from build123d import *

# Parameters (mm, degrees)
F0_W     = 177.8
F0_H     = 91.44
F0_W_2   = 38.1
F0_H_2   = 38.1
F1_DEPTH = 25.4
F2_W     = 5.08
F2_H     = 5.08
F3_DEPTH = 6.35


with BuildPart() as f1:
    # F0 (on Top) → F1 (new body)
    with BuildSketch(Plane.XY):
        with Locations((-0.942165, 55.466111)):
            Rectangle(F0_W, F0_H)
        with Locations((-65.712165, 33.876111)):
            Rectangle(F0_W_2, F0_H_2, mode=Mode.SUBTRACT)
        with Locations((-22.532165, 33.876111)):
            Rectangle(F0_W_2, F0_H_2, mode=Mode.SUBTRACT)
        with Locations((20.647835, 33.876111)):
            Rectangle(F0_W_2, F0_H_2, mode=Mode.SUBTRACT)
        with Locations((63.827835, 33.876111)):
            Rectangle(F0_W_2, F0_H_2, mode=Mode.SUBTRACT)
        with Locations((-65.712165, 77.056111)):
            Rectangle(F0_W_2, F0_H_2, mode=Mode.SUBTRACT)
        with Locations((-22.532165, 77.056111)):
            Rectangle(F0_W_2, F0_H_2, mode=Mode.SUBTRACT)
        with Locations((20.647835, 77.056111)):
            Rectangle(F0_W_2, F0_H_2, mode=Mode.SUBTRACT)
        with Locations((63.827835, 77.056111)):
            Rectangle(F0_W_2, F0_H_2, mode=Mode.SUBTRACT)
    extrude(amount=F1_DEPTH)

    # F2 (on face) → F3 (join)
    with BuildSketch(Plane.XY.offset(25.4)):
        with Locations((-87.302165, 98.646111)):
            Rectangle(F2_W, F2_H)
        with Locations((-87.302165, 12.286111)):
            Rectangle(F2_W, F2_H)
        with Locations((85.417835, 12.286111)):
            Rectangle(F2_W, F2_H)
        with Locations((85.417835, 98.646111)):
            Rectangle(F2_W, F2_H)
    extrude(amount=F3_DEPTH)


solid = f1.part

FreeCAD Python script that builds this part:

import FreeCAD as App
import Part
import Sketcher
from FreeCAD import Vector
Q = App.Units.Quantity


def add_polygon(sketch, points):
    """Adds a closed chain of lines whose ends are joined by coincident constraints."""
    first, n = sketch.GeometryCount, len(points)
    for a, b in zip(points, points[1:] + points[:1]):
        sketch.addGeometry(Part.LineSegment(App.Vector(*a, 0), App.Vector(*b, 0)), False)
    for i in range(n):
        sketch.addConstraint(Sketcher.Constraint("Coincident", first + i, 2, first + (i + 1) % n, 1))

doc = App.newDocument("Part")
body = doc.addObject("PartDesign::Body", "Body")

sketch1 = doc.addObject("Sketcher::SketchObject", "Sketch")
body.addObject(sketch1)
sketch1.AttachmentSupport = (doc.XY_Plane, [""])
sketch1.MapMode = "FlatFace"
add_polygon(sketch1, [(-89.842165, 101.186111), (-89.842165, 9.746111), (87.957835, 9.746111), (87.957835, 101.186111)])
add_polygon(sketch1, [(-46.662165, 14.826111), (-84.762165, 14.826111), (-84.762165, 52.926111), (-46.662165, 52.926111)])
add_polygon(sketch1, [(-3.482165, 14.826111), (-41.582165, 14.826111), (-41.582165, 52.926111), (-3.482165, 52.926111)])
add_polygon(sketch1, [(39.697835, 14.826111), (1.597835, 14.826111), (1.597835, 52.926111), (39.697835, 52.926111)])
add_polygon(sketch1, [(82.877835, 14.826111), (44.777835, 14.826111), (44.777835, 52.926111), (82.877835, 52.926111)])
add_polygon(sketch1, [(-46.662165, 58.006111), (-84.762165, 58.006111), (-84.762165, 96.106111), (-46.662165, 96.106111)])
add_polygon(sketch1, [(-3.482165, 58.006111), (-41.582165, 58.006111), (-41.582165, 96.106111), (-3.482165, 96.106111)])
add_polygon(sketch1, [(39.697835, 58.006111), (1.597835, 58.006111), (1.597835, 96.106111), (39.697835, 96.106111)])
add_polygon(sketch1, [(82.877835, 58.006111), (44.777835, 58.006111), (44.777835, 96.106111), (82.877835, 96.106111)])
sketch1.addConstraint([
    Sketcher.Constraint("Vertical", 0),
    Sketcher.Constraint("Horizontal", 1),
    Sketcher.Constraint("Vertical", 2),
    Sketcher.Constraint("Horizontal", 3),
    Sketcher.Constraint("Horizontal", 4),
    Sketcher.Constraint("Vertical", 5),
    Sketcher.Constraint("Horizontal", 6),
    Sketcher.Constraint("Vertical", 7),
    Sketcher.Constraint("Horizontal", 8),
    Sketcher.Constraint("Vertical", 9),
    Sketcher.Constraint("Horizontal", 10),
    Sketcher.Constraint("Vertical", 11),
    Sketcher.Constraint("Horizontal", 12),
    Sketcher.Constraint("Vertical", 13),
    Sketcher.Constraint("Horizontal", 14),
    Sketcher.Constraint("Vertical", 15),
    Sketcher.Constraint("Horizontal", 16),
    Sketcher.Constraint("Vertical", 17),
    Sketcher.Constraint("Horizontal", 18),
    Sketcher.Constraint("Vertical", 19),
    Sketcher.Constraint("Horizontal", 20),
    Sketcher.Constraint("Vertical", 21),
    Sketcher.Constraint("Horizontal", 22),
    Sketcher.Constraint("Vertical", 23),
    Sketcher.Constraint("Horizontal", 24),
    Sketcher.Constraint("Vertical", 25),
    Sketcher.Constraint("Horizontal", 26),
    Sketcher.Constraint("Vertical", 27),
    Sketcher.Constraint("Horizontal", 28),
    Sketcher.Constraint("Vertical", 29),
    Sketcher.Constraint("Horizontal", 30),
    Sketcher.Constraint("Vertical", 31),
    Sketcher.Constraint("Horizontal", 32),
    Sketcher.Constraint("Vertical", 33),
    Sketcher.Constraint("Horizontal", 34),
    Sketcher.Constraint("Vertical", 35),
    Sketcher.Constraint("Horizontal", 7, 2, 8, 2),
    Sketcher.Constraint("Horizontal", 6, 2, 9, 2),
    Sketcher.Constraint("Horizontal", 11, 2, 12, 2),
    Sketcher.Constraint("Horizontal", 10, 2, 13, 2),
    Sketcher.Constraint("Horizontal", 15, 2, 16, 2),
    Sketcher.Constraint("Horizontal", 14, 2, 17, 2),
    Sketcher.Constraint("Horizontal", 23, 2, 24, 2),
    Sketcher.Constraint("Horizontal", 22, 2, 25, 2),
    Sketcher.Constraint("Horizontal", 27, 2, 28, 2),
    Sketcher.Constraint("Horizontal", 26, 2, 29, 2),
    Sketcher.Constraint("Horizontal", 31, 2, 32, 2),
    Sketcher.Constraint("Horizontal", 30, 2, 33, 2),
    Sketcher.Constraint("Vertical", 5, 2, 20, 2),
    Sketcher.Constraint("Vertical", 7, 2, 22, 2),
    Sketcher.Constraint("Vertical", 9, 2, 24, 2),
    Sketcher.Constraint("Vertical", 11, 2, 26, 2),
    Sketcher.Constraint("Vertical", 13, 2, 28, 2),
    Sketcher.Constraint("Vertical", 15, 2, 30, 2),
    Sketcher.Constraint("Vertical", 17, 2, 32, 2),
    Sketcher.Constraint("Vertical", 19, 2, 34, 2),
    Sketcher.Constraint("Equal", 6, 8),
    Sketcher.Constraint("Equal", 10, 12),
    Sketcher.Constraint("Equal", 14, 16),
    Sketcher.Constraint("Equal", 34, 5),
    Sketcher.Constraint("Equal", 19, 21),
    Sketcher.Constraint("DistanceX", 1, 1, 1, 2, Q("7 in")),
    Sketcher.Constraint("DistanceX", 4, 2, 4, 1, Q("1.5 in")),
    Sketcher.Constraint("DistanceY", 0, 2, 0, 1, Q("3.6 in")),
    Sketcher.Constraint("DistanceX", 0, 2, 4, 2, Q("0.2 in")),
    Sketcher.Constraint("DistanceY", 0, 2, 4, 2, Q("0.2 in")),
    Sketcher.Constraint("DistanceX", 7, 2, 8, 2, Q("0.2 in")),
    Sketcher.Constraint("DistanceX", 11, 2, 12, 2, Q("0.2 in")),
    Sketcher.Constraint("DistanceX", 15, 2, 16, 2, Q("0.2 in")),
    Sketcher.Constraint("DistanceY", 5, 2, 20, 2, Q("0.2 in")),
    Sketcher.Constraint("DistanceY", -1, 1, 0, 2, 9.746111),
    Sketcher.Constraint("DistanceX", 0, 2, -1, 1, 89.842165),
])
pad1 = doc.addObject("PartDesign::Pad", "Pad")
body.addObject(pad1)
pad1.Profile = sketch1
pad1.Length = Q("1 in")

sketch2 = doc.addObject("Sketcher::SketchObject", "Sketch001")
body.addObject(sketch2)
sketch2.AttachmentSupport = (doc.XY_Plane, [""])
sketch2.MapMode = "FlatFace"
sketch2.AttachmentOffset = App.Placement(Vector(0, 0, 1 * 25.4), App.Rotation())
add_polygon(sketch2, [(-89.842165, 101.186111), (-89.842165, 96.106111), (-84.762165, 96.106111), (-84.762165, 101.186111)])
add_polygon(sketch2, [(-89.842165, 14.826111), (-89.842165, 9.746111), (-84.762165, 9.746111), (-84.762165, 14.826111)])
add_polygon(sketch2, [(82.877835, 14.826111), (82.877835, 9.746111), (87.957835, 9.746111), (87.957835, 14.826111)])
add_polygon(sketch2, [(82.877835, 101.186111), (82.877835, 96.106111), (87.957835, 96.106111), (87.957835, 101.186111)])
sketch2.addConstraint([
    Sketcher.Constraint("Vertical", 0),
    Sketcher.Constraint("Horizontal", 1),
    Sketcher.Constraint("Vertical", 2),
    Sketcher.Constraint("Horizontal", 3),
    Sketcher.Constraint("Vertical", 4),
    Sketcher.Constraint("Horizontal", 5),
    Sketcher.Constraint("Vertical", 6),
    Sketcher.Constraint("Horizontal", 7),
    Sketcher.Constraint("Vertical", 8),
    Sketcher.Constraint("Horizontal", 9),
    Sketcher.Constraint("Vertical", 10),
    Sketcher.Constraint("Horizontal", 11),
    Sketcher.Constraint("Vertical", 12),
    Sketcher.Constraint("Horizontal", 13),
    Sketcher.Constraint("Vertical", 14),
    Sketcher.Constraint("Horizontal", 15),
    Sketcher.Constraint("Horizontal", 5, 2, 8, 2),
    Sketcher.Constraint("Horizontal", 7, 2, 10, 2),
    Sketcher.Constraint("Horizontal", 1, 2, 12, 2),
    Sketcher.Constraint("Horizontal", 3, 2, 14, 2),
    Sketcher.Constraint("Vertical", 3, 2, 4, 2),
    Sketcher.Constraint("Vertical", 2, 2, 5, 2),
    Sketcher.Constraint("Vertical", 11, 2, 12, 2),
    Sketcher.Constraint("Vertical", 10, 2, 13, 2),
    Sketcher.Constraint("Equal", 7, 9),
    Sketcher.Constraint("Equal", 15, 0),
    Sketcher.Constraint("Equal", 2, 4),
    Sketcher.Constraint("DistanceX", 1, 1, 1, 2, Q("0.2 in")),
    Sketcher.Constraint("DistanceX", 4, 2, 9, 2, Q("7 in")),
    Sketcher.Constraint("DistanceY", 4, 2, 0, 2, Q("3.4 in")),
    Sketcher.Constraint("DistanceY", -1, 1, 0, 2, 96.106111),
    Sketcher.Constraint("DistanceX", 0, 2, -1, 1, 89.842165),
])
pad2 = doc.addObject("PartDesign::Pad", "Pad001")
body.addObject(pad2)
pad2.Profile = sketch2
pad2.Length = Q("0.25 in")

doc.recompute()
